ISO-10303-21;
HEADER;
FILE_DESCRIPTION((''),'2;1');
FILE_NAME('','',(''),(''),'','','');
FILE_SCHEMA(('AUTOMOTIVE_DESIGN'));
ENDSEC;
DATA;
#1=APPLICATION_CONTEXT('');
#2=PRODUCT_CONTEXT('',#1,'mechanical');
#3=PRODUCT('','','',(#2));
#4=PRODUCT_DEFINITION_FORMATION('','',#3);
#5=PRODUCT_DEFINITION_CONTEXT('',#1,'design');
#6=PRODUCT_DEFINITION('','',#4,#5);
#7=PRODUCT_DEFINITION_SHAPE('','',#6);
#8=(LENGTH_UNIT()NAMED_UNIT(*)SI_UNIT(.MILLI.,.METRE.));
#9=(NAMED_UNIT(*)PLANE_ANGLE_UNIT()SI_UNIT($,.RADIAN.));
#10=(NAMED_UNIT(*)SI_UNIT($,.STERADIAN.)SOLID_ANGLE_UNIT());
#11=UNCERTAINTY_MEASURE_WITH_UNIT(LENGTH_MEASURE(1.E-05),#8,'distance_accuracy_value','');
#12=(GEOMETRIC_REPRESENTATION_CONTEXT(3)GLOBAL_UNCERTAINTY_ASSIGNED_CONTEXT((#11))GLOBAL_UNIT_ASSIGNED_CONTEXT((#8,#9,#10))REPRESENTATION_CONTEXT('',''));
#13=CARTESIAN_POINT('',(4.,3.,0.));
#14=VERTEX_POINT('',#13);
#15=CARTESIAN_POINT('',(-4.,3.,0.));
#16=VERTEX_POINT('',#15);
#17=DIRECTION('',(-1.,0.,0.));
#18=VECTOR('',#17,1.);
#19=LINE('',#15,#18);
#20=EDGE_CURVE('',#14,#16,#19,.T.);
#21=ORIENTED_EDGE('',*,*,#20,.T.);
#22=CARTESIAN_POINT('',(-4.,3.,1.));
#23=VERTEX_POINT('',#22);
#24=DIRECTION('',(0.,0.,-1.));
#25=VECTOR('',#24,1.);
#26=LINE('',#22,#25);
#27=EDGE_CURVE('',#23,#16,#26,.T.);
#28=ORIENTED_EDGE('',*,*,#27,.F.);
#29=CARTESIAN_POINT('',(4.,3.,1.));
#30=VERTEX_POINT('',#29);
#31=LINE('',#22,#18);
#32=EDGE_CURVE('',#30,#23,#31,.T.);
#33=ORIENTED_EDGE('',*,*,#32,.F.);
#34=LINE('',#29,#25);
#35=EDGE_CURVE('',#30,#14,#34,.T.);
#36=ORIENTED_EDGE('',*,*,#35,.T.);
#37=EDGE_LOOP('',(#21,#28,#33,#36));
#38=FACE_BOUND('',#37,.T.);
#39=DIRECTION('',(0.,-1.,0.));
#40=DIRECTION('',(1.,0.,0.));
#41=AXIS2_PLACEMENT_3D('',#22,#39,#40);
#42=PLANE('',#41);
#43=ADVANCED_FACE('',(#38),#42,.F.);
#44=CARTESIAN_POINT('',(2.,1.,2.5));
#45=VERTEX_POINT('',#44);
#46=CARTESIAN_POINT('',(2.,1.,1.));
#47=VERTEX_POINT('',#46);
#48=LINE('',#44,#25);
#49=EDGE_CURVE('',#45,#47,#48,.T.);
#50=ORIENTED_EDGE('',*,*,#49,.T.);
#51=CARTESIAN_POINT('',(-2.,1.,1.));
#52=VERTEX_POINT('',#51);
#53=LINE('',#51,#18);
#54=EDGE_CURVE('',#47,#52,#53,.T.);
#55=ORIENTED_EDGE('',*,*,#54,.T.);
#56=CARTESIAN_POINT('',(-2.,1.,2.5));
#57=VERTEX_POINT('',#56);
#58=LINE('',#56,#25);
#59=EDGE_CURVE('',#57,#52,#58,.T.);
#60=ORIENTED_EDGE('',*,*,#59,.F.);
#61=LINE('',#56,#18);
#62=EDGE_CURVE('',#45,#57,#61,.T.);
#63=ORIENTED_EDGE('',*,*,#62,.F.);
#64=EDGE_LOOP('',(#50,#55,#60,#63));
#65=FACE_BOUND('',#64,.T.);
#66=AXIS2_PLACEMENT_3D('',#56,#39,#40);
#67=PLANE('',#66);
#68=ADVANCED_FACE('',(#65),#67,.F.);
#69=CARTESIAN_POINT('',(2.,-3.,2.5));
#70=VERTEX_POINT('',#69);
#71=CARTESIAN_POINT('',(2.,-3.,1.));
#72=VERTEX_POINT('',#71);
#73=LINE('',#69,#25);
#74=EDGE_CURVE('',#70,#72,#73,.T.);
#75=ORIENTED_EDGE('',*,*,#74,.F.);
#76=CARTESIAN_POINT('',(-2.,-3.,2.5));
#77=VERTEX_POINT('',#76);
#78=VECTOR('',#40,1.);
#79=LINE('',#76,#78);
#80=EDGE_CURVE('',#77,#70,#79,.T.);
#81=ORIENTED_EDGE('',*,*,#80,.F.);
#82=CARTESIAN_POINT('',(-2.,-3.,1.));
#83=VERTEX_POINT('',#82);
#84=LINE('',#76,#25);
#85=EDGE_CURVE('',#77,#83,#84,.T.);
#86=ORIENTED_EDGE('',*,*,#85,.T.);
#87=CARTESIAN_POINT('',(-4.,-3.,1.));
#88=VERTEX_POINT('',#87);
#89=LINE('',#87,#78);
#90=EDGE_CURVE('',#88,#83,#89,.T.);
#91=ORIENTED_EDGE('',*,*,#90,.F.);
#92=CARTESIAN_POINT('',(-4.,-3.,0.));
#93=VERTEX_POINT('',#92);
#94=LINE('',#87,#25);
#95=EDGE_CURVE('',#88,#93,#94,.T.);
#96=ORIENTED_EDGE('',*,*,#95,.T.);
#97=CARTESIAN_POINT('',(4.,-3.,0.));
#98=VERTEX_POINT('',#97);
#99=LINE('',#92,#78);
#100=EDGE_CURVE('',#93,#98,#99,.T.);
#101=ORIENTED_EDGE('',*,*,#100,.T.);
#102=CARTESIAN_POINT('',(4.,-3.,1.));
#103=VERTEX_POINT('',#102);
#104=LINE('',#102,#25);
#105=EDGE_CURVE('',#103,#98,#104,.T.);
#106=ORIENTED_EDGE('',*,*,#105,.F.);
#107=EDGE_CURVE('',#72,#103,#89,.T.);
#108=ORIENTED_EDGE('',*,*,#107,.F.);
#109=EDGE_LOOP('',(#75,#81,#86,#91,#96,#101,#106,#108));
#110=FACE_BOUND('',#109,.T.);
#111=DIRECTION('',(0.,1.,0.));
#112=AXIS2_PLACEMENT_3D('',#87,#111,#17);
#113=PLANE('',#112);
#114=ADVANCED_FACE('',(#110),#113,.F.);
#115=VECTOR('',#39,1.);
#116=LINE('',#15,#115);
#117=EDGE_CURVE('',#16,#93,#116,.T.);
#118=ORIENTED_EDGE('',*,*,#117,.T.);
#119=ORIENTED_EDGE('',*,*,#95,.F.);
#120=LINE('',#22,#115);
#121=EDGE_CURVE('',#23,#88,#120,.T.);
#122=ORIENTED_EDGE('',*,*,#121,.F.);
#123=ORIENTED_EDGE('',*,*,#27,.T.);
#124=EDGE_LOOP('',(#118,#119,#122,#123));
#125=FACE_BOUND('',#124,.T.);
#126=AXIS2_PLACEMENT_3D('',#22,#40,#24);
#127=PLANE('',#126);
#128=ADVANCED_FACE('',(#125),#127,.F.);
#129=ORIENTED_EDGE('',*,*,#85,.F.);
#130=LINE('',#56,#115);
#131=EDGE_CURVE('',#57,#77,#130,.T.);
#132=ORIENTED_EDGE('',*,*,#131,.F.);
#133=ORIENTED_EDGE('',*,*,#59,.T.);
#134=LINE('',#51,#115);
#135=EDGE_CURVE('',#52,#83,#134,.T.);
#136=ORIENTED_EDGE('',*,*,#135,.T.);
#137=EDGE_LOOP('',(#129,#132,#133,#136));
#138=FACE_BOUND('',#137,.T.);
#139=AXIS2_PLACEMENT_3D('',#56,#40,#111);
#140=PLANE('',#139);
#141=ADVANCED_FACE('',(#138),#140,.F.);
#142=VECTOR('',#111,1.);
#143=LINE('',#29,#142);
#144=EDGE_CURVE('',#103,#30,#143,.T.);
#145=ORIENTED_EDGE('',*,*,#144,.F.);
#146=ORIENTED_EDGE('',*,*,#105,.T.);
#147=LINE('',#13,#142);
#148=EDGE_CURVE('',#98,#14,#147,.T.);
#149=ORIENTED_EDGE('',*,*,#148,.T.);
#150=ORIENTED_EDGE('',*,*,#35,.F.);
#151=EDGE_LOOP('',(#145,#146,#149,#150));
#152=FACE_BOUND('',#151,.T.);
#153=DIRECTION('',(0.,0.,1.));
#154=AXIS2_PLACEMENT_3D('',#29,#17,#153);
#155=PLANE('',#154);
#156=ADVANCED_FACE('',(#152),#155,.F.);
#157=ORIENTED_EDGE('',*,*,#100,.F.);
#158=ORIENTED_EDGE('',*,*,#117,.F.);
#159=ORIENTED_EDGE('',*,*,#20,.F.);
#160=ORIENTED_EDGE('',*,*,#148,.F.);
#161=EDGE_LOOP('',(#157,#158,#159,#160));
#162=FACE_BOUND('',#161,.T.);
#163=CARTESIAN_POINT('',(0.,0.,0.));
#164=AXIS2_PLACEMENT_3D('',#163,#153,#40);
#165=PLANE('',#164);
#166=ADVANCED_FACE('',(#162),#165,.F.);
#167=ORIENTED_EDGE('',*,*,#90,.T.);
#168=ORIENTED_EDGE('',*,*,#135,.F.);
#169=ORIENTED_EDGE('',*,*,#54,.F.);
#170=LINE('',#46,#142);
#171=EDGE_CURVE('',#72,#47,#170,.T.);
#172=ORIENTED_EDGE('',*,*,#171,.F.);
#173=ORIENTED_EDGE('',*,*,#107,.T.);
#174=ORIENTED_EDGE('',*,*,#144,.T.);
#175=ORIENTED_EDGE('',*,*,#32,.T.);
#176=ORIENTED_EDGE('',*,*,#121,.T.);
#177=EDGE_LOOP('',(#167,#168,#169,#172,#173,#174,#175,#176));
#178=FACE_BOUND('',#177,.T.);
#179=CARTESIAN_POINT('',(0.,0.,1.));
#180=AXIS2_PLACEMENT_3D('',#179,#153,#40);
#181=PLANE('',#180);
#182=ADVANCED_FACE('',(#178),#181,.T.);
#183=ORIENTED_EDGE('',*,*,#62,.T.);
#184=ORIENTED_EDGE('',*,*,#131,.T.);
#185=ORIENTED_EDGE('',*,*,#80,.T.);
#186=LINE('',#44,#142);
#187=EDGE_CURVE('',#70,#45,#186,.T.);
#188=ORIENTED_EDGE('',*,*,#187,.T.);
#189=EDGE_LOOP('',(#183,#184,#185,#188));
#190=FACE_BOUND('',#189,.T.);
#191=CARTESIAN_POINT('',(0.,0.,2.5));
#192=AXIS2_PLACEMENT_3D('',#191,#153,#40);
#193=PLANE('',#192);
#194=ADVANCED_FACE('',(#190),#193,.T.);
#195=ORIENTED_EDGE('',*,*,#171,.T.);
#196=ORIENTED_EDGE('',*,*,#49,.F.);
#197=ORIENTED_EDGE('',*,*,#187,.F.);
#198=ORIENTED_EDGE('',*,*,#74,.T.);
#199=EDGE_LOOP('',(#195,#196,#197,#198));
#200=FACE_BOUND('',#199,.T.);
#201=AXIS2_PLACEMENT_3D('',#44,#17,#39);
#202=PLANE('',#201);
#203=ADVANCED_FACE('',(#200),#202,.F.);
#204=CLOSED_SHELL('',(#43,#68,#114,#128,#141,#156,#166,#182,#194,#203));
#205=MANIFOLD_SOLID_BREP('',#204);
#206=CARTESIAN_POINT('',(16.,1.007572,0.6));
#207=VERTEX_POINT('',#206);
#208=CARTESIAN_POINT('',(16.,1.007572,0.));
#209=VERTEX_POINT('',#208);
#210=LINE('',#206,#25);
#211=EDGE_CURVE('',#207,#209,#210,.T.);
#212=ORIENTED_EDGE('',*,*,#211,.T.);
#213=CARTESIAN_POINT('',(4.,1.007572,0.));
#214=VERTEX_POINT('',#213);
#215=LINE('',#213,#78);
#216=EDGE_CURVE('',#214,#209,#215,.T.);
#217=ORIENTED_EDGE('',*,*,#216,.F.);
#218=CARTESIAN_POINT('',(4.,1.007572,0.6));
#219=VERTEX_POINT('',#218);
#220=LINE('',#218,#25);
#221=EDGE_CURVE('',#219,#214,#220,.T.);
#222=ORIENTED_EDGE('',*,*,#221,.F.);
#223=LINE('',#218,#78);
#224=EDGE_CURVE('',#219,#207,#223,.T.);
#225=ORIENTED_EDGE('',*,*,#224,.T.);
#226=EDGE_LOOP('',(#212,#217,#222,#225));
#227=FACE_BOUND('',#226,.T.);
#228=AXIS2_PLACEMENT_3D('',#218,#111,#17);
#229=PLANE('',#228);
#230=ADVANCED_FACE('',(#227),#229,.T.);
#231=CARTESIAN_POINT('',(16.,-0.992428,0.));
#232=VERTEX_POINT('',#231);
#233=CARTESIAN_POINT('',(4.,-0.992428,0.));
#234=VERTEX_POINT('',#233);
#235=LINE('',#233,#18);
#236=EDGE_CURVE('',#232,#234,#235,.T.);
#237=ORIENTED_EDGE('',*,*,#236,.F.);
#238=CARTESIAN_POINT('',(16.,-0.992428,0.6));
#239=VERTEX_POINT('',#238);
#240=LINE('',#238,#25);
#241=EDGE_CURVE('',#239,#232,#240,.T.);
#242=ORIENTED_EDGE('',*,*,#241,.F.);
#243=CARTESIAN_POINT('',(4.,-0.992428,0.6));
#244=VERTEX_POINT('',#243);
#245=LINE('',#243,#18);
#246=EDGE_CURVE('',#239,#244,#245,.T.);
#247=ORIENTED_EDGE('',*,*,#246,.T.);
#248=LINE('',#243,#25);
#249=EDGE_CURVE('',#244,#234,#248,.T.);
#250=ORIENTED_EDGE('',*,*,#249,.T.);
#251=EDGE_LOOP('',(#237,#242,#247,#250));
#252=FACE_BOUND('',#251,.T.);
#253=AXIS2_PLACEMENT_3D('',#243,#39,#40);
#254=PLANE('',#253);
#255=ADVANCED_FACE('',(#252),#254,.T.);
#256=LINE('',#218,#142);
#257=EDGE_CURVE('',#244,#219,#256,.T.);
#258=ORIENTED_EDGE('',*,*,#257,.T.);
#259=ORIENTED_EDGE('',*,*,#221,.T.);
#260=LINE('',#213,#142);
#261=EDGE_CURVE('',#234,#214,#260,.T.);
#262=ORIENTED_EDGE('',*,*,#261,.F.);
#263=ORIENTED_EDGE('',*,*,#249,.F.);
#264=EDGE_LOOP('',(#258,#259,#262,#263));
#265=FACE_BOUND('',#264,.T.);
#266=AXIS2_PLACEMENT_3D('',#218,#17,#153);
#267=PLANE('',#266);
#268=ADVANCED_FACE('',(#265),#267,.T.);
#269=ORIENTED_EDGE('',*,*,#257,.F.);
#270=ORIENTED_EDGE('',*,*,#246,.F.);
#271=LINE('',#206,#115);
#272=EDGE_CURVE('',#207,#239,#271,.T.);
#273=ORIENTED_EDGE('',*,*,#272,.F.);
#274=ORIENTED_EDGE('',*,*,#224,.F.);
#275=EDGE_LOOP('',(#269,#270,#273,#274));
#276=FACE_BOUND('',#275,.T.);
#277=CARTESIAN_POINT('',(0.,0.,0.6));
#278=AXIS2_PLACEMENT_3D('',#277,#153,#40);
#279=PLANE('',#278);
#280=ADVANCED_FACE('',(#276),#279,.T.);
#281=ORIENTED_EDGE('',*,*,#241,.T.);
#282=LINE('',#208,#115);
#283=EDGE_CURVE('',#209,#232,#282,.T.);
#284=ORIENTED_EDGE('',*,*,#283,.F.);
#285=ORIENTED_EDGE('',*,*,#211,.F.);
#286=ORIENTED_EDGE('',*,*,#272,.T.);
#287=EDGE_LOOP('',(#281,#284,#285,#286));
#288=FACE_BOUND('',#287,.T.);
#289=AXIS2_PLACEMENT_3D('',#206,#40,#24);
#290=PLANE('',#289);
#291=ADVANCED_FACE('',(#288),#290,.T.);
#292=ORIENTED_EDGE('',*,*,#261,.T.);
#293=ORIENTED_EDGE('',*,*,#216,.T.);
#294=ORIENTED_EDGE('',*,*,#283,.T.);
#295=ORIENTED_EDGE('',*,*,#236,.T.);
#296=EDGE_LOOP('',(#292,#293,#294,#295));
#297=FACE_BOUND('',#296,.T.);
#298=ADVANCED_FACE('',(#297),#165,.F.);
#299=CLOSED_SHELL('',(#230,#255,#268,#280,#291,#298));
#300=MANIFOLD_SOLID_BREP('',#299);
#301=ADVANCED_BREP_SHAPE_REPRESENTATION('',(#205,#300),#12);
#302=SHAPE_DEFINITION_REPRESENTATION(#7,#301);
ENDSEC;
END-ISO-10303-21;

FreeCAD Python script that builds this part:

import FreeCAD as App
import Part
import Sketcher

V = App.Vector
Q = App.Units.Quantity


def add_polygon(sketch, points):
    """Adds a closed chain of lines whose ends are joined by coincident constraints."""
    first, n = sketch.GeometryCount, len(points)
    for a, b in zip(points, points[1:] + points[:1]):
        sketch.addGeometry(Part.LineSegment(App.Vector(*a, 0), App.Vector(*b, 0)), False)
    for i in range(n):
        sketch.addConstraint(Sketcher.Constraint("Coincident", first + i, 2, first + (i + 1) % n, 1))

doc = App.newDocument("Part")
body = doc.addObject("PartDesign::Body", "Body")

# Sketch on XY plane
sketch1 = doc.addObject("Sketcher::SketchObject", "Sketch")
body.addObject(sketch1)
sketch1.AttachmentSupport = (doc.XY_Plane, [""])
sketch1.MapMode = "FlatFace"
add_polygon(sketch1, [(-4, 3), (-4, -3), (4, -3), (4, 3)])  # lines 0-3
sketch1.addConstraint([
    Sketcher.Constraint("Vertical", 0),
    Sketcher.Constraint("Horizontal", 1),
    Sketcher.Constraint("Vertical", 2),
    Sketcher.Constraint("Horizontal", 3),
    Sketcher.Constraint("Symmetric", 0, 2, 2, 2, -1, 1),
    Sketcher.Constraint("DistanceX", 1, 1, 1, 2, Q("8 mm")),
    Sketcher.Constraint("DistanceY", 0, 2, 0, 1, Q("6 mm")),
])
pad1 = doc.addObject("PartDesign::Pad", "Pad")
body.addObject(pad1)
pad1.Profile = sketch1
pad1.Length = 1

# Sketch on XY plane
sketch2 = doc.addObject("Sketcher::SketchObject", "Sketch001")
body.addObject(sketch2)
sketch2.AttachmentSupport = (doc.XY_Plane, [""])
sketch2.MapMode = "FlatFace"
sketch2.AttachmentOffset = App.Placement(V(0, 0, 1), App.Rotation())
add_polygon(sketch2, [(-2, 1), (-2, -3), (2, -3), (2, 1)])  # lines 0-3
sketch2.addConstraint([
    Sketcher.Constraint("Vertical", 0),
    Sketcher.Constraint("Horizontal", 1),
    Sketcher.Constraint("Vertical", 2),
    Sketcher.Constraint("Horizontal", 3),
    Sketcher.Constraint("Equal", 3, 0),
    Sketcher.Constraint("DistanceX", 1, 1, 1, 2, Q("4 mm")),
    Sketcher.Constraint("DistanceX", 0, 2, -1, 1, Q("2 mm")),
    Sketcher.Constraint("DistanceY", 0, 2, -1, 1, Q("3 mm")),
])
pad2 = doc.addObject("PartDesign::Pad", "Pad001")
body.addObject(pad2)
pad2.Profile = sketch2
pad2.Length = 1.5
body2 = doc.addObject("PartDesign::Body", "Body001")

# Sketch on XY plane
sketch3 = doc.addObject("Sketcher::SketchObject", "Sketch002")
body2.addObject(sketch3)
sketch3.AttachmentSupport = (doc.getObject("XY_Plane001"), [""])
sketch3.MapMode = "FlatFace"
add_polygon(sketch3, [(16, 1), (16, -1), (4, -1), (4, 1)])  # lines 0-3
sketch3.addConstraint([
    Sketcher.Constraint("Vertical", 0),
    Sketcher.Constraint("Horizontal", 1),
    Sketcher.Constraint("Vertical", 2),
    Sketcher.Constraint("Horizontal", 3),
    Sketcher.Constraint("DistanceX", 1, 2, 1, 1, Q("12 mm")),
    Sketcher.Constraint("DistanceY", 0, 2, 0, 1, Q("2 mm")),
    Sketcher.Constraint("DistanceX", -1, 1, 0, 2, Q("16 mm")),
    Sketcher.Constraint("DistanceY", 0, 2, -1, 1, Q("0.992428 mm")),
])
pad3 = doc.addObject("PartDesign::Pad", "Pad002")
body2.addObject(pad3)
pad3.Profile = sketch3
pad3.Length = 0.6

doc.recompute()
